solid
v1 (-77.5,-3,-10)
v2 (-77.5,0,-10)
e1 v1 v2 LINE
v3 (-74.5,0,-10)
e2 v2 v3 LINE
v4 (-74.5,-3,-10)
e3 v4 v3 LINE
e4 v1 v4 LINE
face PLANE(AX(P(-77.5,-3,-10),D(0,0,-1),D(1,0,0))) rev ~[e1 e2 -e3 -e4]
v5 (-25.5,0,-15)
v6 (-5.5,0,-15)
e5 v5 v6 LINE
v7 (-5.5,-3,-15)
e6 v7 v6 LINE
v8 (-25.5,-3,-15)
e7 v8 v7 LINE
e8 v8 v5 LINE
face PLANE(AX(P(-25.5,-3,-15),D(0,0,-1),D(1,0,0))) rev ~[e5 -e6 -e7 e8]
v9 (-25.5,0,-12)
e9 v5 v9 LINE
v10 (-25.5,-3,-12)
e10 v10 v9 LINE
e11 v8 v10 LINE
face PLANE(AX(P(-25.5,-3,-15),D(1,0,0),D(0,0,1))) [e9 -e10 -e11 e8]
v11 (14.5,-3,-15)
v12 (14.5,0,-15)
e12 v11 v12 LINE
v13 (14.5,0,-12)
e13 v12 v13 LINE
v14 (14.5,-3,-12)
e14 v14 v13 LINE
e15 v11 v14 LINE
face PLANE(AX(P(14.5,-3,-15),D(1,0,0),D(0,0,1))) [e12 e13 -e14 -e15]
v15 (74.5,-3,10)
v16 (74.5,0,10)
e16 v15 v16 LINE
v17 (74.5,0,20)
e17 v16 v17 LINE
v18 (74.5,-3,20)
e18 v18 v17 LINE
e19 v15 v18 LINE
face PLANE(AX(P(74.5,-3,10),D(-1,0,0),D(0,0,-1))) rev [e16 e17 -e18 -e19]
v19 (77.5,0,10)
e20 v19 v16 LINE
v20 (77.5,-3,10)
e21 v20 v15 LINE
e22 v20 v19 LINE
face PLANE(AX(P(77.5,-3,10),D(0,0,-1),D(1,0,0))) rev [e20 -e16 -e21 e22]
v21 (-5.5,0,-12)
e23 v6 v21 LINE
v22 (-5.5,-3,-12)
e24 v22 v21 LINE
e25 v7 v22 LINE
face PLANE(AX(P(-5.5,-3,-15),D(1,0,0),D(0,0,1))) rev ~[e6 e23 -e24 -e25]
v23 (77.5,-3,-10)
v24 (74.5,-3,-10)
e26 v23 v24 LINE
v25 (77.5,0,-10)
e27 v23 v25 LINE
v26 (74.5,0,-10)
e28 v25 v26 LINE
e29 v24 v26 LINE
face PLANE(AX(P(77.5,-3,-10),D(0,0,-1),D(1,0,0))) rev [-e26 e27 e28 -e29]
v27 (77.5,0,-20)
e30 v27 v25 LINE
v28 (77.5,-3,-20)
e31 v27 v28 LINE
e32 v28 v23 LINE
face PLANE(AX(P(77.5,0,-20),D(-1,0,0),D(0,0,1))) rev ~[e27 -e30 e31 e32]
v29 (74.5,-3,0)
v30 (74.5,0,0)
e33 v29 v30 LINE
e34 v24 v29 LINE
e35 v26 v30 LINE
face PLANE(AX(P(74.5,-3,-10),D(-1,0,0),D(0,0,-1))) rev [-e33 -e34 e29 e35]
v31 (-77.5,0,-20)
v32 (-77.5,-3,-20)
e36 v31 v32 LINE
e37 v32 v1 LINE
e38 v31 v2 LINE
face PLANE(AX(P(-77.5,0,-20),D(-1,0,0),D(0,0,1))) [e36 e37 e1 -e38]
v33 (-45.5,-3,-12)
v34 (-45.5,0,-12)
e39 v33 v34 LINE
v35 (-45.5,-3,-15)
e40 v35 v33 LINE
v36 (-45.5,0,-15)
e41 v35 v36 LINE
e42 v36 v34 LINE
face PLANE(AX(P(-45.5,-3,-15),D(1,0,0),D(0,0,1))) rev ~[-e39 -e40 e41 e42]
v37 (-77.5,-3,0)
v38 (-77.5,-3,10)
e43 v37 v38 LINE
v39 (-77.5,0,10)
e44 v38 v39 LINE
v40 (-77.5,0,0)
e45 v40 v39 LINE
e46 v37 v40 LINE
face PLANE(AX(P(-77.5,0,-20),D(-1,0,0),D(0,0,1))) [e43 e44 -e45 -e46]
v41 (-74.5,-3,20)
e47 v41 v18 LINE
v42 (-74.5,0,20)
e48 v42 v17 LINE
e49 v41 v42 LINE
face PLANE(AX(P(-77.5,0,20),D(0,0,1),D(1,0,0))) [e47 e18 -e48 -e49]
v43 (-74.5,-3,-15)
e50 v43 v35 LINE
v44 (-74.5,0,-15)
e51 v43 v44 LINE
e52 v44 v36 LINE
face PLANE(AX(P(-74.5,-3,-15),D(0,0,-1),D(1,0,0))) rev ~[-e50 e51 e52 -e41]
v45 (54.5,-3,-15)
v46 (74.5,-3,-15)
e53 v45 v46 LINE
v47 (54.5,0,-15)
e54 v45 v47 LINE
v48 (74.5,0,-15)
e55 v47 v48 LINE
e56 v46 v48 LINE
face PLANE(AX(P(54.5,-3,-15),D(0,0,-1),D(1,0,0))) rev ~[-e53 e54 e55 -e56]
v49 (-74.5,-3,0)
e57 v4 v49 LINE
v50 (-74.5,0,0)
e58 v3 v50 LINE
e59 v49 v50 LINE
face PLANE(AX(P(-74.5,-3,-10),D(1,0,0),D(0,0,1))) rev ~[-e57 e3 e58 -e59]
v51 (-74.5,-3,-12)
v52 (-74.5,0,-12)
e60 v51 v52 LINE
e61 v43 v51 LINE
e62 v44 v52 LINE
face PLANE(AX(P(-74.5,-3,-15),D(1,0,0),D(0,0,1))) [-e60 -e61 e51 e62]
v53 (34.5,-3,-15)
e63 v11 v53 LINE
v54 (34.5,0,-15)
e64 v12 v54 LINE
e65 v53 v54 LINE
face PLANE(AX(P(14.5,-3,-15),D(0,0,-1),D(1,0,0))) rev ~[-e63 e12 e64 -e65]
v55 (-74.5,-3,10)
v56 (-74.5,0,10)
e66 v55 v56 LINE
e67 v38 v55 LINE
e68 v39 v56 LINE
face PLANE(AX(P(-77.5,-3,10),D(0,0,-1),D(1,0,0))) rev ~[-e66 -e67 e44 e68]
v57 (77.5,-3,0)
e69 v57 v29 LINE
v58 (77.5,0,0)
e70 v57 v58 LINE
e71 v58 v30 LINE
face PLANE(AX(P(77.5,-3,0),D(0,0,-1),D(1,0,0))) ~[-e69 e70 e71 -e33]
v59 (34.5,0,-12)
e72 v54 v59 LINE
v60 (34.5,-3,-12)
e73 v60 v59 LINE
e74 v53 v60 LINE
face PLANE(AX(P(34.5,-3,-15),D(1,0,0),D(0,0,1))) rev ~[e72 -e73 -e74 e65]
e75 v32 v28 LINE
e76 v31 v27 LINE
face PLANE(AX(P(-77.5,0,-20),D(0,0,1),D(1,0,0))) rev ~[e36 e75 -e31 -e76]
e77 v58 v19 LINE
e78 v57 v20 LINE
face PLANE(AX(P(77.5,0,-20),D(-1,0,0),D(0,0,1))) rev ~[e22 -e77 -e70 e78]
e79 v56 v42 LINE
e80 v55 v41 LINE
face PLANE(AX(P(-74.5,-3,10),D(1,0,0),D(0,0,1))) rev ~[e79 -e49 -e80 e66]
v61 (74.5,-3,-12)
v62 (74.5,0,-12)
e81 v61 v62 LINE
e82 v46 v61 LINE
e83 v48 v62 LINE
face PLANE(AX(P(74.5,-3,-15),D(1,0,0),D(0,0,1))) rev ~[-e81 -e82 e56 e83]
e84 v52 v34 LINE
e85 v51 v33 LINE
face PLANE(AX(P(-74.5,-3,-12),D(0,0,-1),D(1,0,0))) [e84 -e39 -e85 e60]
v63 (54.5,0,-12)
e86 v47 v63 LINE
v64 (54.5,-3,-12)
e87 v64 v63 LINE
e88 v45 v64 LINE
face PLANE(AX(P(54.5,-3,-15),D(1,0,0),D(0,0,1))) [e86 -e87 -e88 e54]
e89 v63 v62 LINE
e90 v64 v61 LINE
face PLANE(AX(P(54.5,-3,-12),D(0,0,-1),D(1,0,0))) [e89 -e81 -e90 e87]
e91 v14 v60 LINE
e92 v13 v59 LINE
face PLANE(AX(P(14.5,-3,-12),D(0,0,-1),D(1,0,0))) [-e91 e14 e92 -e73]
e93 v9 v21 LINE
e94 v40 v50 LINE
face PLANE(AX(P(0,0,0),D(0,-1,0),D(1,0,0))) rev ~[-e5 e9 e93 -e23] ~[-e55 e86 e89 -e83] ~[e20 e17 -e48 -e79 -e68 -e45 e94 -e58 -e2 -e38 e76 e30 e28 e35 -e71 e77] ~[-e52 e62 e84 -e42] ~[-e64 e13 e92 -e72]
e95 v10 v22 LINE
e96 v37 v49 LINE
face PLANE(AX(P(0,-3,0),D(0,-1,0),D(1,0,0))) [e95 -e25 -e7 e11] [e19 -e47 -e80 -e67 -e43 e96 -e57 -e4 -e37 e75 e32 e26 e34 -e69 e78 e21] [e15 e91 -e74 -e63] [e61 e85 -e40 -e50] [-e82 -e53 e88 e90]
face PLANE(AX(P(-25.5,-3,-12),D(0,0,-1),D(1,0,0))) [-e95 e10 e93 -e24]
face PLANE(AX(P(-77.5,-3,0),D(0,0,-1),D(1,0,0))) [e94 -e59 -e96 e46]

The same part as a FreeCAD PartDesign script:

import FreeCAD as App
import Part
import Sketcher

doc = App.newDocument("Part")
body = doc.addObject("PartDesign::Body", "Body")

# Sketch on XZ plane
sketch1 = body.newObject("Sketcher::SketchObject", "Sketch")
sketch1.AttachmentSupport = (doc.getObject("XZ_Plane"), [""])
sketch1.MapMode = "FlatFace"
sketch1.addGeometry([
    Part.LineSegment(App.Vector(-78, 20, 0), App.Vector(-78, -20, 0)),
    Part.LineSegment(App.Vector(-78, -20, 0), App.Vector(78, -20, 0)),
    Part.LineSegment(App.Vector(78, -20, 0), App.Vector(78, 20, 0)),
    Part.LineSegment(App.Vector(78, 20, 0), App.Vector(-78, 20, 0)),
], False)
sketch1.addConstraint([
    Sketcher.Constraint("Coincident", 0, 2, 1, 1),
    Sketcher.Constraint("Coincident", 1, 2, 2, 1),
    Sketcher.Constraint("Coincident", 2, 2, 3, 1),
    Sketcher.Constraint("Coincident", 3, 2, 0, 1),
    Sketcher.Constraint("Vertical", 0),
    Sketcher.Constraint("Horizontal", 1),
    Sketcher.Constraint("Vertical", 2),
    Sketcher.Constraint("Horizontal", 3),
    Sketcher.Constraint("Symmetric", 0, 2, 2, 2, -1, 1),
    Sketcher.Constraint("DistanceX", 1, 1, 1, 2, 155.0),
    Sketcher.Constraint("DistanceY", 0, 2, 0, 1, 40.0),
])
pad1 = body.newObject("PartDesign::Pad", "Pad")
pad1.Profile = sketch1
pad1.Length = 3

# Sketch on XZ plane
sketch2 = body.newObject("Sketcher::SketchObject", "Sketch001")
sketch2.AttachmentSupport = (doc.getObject("XZ_Plane"), [""])
sketch2.MapMode = "FlatFace"
sketch2.AttachmentOffset = App.Placement(App.Vector(0, 0, 3), App.Rotation())
sketch2.addGeometry([
    Part.LineSegment(App.Vector(54.5, -12, 0), App.Vector(54.5, -15, 0)),  # 0
    Part.LineSegment(App.Vector(54.5, -15, 0), App.Vector(74.5, -15, 0)),  # 1
    Part.LineSegment(App.Vector(74.5, -15, 0), App.Vector(74.5, -12, 0)),  # 2
    Part.LineSegment(App.Vector(74.5, -12, 0), App.Vector(54.5, -12, 0)),  # 3
    Part.LineSegment(App.Vector(14.5, -12, 0), App.Vector(14.5, -15, 0)),  # 4
    Part.LineSegment(App.Vector(14.5, -15, 0), App.Vector(34.5, -15, 0)),  # 5
    Part.LineSegment(App.Vector(34.5, -15, 0), App.Vector(34.5, -12, 0)),  # 6
    Part.LineSegment(App.Vector(34.5, -12, 0), App.Vector(14.5, -12, 0)),  # 7
    Part.LineSegment(App.Vector(-25.5, -12, 0), App.Vector(-25.5, -15, 0)),  # 8
    Part.LineSegment(App.Vector(-25.5, -15, 0), App.Vector(-5.5, -15, 0)),  # 9
    Part.LineSegment(App.Vector(-5.5, -15, 0), App.Vector(-5.5, -12, 0)),  # 10
    Part.LineSegment(App.Vector(-5.5, -12, 0), App.Vector(-25.5, -12, 0)),  # 11
    Part.LineSegment(App.Vector(-74.5, -12, 0), App.Vector(-74.5, -15, 0)),  # 12
    Part.LineSegment(App.Vector(-74.5, -15, 0), App.Vector(-45.5, -15, 0)),  # 13
    Part.LineSegment(App.Vector(-45.5, -15, 0), App.Vector(-45.5, -12, 0)),  # 14
    Part.LineSegment(App.Vector(-45.5, -12, 0), App.Vector(-74.5, -12, 0)),  # 15
], False)
sketch2.addConstraint([
    Sketcher.Constraint("Coincident", 0, 2, 1, 1),
    Sketcher.Constraint("Coincident", 1, 2, 2, 1),
    Sketcher.Constraint("Coincident", 2, 2, 3, 1),
    Sketcher.Constraint("Coincident", 3, 2, 0, 1),
    Sketcher.Constraint("Coincident", 4, 2, 5, 1),
    Sketcher.Constraint("Coincident", 5, 2, 6, 1),
    Sketcher.Constraint("Coincident", 6, 2, 7, 1),
    Sketcher.Constraint("Coincident", 7, 2, 4, 1),
    Sketcher.Constraint("Coincident", 8, 2, 9, 1),
    Sketcher.Constraint("Coincident", 9, 2, 10, 1),
    Sketcher.Constraint("Coincident", 10, 2, 11, 1),
    Sketcher.Constraint("Coincident", 11, 2, 8, 1),
    Sketcher.Constraint("Coincident", 12, 2, 13, 1),
    Sketcher.Constraint("Coincident", 13, 2, 14, 1),
    Sketcher.Constraint("Coincident", 14, 2, 15, 1),
    Sketcher.Constraint("Coincident", 15, 2, 12, 1),
    Sketcher.Constraint("Vertical", 0),
    Sketcher.Constraint("Horizontal", 1),
    Sketcher.Constraint("Vertical", 2),
    Sketcher.Constraint("Horizontal", 3),
    Sketcher.Constraint("Vertical", 4),
    Sketcher.Constraint("Horizontal", 5),
    Sketcher.Constraint("Vertical", 6),
    Sketcher.Constraint("Horizontal", 7),
    Sketcher.Constraint("Vertical", 8),
    Sketcher.Constraint("Horizontal", 9),
    Sketcher.Constraint("Vertical", 10),
    Sketcher.Constraint("Horizontal", 11),
    Sketcher.Constraint("Vertical", 12),
    Sketcher.Constraint("Horizontal", 13),
    Sketcher.Constraint("Vertical", 14),
    Sketcher.Constraint("Horizontal", 15),
    Sketcher.Constraint("Symmetric", 1, 2, 12, 2, -2),
    Sketcher.Constraint("Horizontal", 1, 2, 4, 2),
    Sketcher.Constraint("Horizontal", 3, 2, 6, 2),
    Sketcher.Constraint("Horizontal", 5, 2, 8, 2),
    Sketcher.Constraint("Horizontal", 7, 2, 10, 2),
    Sketcher.Constraint("Horizontal", 11, 2, 14, 2),
    Sketcher.Constraint("Equal", 3, 5),
    Sketcher.Constraint("Equal", 7, 9),
    Sketcher.Constraint("DistanceX", 1, 1, 1, 2, 20.0),
    Sketcher.Constraint("DistanceX", 13, 1, 13, 2, 29.0),
    Sketcher.Constraint("DistanceY", 0, 2, 0, 1, 3.0),
    Sketcher.Constraint("DistanceY", 0, 2, -1, 1, 15.0),
    Sketcher.Constraint("DistanceX", 4, 2, 0, 2, 40.0),
    Sketcher.Constraint("DistanceX", 8, 2, 4, 2, 40.0),
    Sketcher.Constraint("DistanceX", 12, 2, 8, 2, 49.0),
])
pocket1 = body.newObject("PartDesign::Pocket", "Pocket")
pocket1.Profile = sketch2
pocket1.Type = "ThroughAll"

# Sketch on XZ plane
sketch3 = body.newObject("Sketcher::SketchObject", "Sketch002")
sketch3.AttachmentSupport = (doc.getObject("XZ_Plane"), [""])
sketch3.MapMode = "FlatFace"
sketch3.AttachmentOffset = App.Placement(App.Vector(0, 0, 3), App.Rotation())
sketch3.addGeometry([
    Part.LineSegment(App.Vector(-77.5, 20, 0), App.Vector(-77.5, 10, 0)),  # 0
    Part.LineSegment(App.Vector(-77.5, 10, 0), App.Vector(-74.5, 10, 0)),  # 1
    Part.LineSegment(App.Vector(-74.5, 10, 0), App.Vector(-74.5, 20, 0)),  # 2
    Part.LineSegment(App.Vector(-74.5, 20, 0), App.Vector(-77.5, 20, 0)),  # 3
    Part.LineSegment(App.Vector(-77.5, 0, 0), App.Vector(-77.5, -10, 0)),  # 4
    Part.LineSegment(App.Vector(-77.5, -10, 0), App.Vector(-74.5, -10, 0)),  # 5
    Part.LineSegment(App.Vector(-74.5, -10, 0), App.Vector(-74.5, 0, 0)),  # 6
    Part.LineSegment(App.Vector(-74.5, 0, 0), App.Vector(-77.5, 0, 0)),  # 7
], False)
sketch3.addConstraint([
    Sketcher.Constraint("Coincident", 0, 2, 1, 1),
    Sketcher.Constraint("Coincident", 1, 2, 2, 1),
    Sketcher.Constraint("Coincident", 2, 2, 3, 1),
    Sketcher.Constraint("Coincident", 3, 2, 0, 1),
    Sketcher.Constraint("Coincident", 4, 2, 5, 1),
    Sketcher.Constraint("Coincident", 5, 2, 6, 1),
    Sketcher.Constraint("Coincident", 6, 2, 7, 1),
    Sketcher.Constraint("Coincident", 7, 2, 4, 1),
    Sketcher.Constraint("Vertical", 0),
    Sketcher.Constraint("Horizontal", 1),
    Sketcher.Constraint("Vertical", 2),
    Sketcher.Constraint("Horizontal", 3),
    Sketcher.Constraint("Vertical", 4),
    Sketcher.Constraint("Horizontal", 5),
    Sketcher.Constraint("Vertical", 6),
    Sketcher.Constraint("Horizontal", 7),
    Sketcher.Constraint("Symmetric", 0, 2, 4, 2, -1),
    Sketcher.Constraint("PointOnObject", 6, 2, -1),
    Sketcher.Constraint("Vertical", 2, 2, 5, 2),
    Sketcher.Constraint("Equal", 2, 4),
    Sketcher.Constraint("DistanceX", 1, 1, 1, 2, 3.0),
    Sketcher.Constraint("DistanceY", 0, 2, 0, 1, 10.0),
    Sketcher.Constraint("DistanceX", 0, 2, -1, 1, 77.5),
])
pocket2 = body.newObject("PartDesign::Pocket", "Pocket001")
pocket2.Profile = sketch3
pocket2.Type = "ThroughAll"
doc.recompute()

mirrored = body.newObject("PartDesign::Mirrored", "Mirrored")
mirrored.Originals = [pocket2]
mirrored.MirrorPlane = (doc.getObject("YZ_Plane"), [""])
body.Tip = mirrored

doc.recompute()
